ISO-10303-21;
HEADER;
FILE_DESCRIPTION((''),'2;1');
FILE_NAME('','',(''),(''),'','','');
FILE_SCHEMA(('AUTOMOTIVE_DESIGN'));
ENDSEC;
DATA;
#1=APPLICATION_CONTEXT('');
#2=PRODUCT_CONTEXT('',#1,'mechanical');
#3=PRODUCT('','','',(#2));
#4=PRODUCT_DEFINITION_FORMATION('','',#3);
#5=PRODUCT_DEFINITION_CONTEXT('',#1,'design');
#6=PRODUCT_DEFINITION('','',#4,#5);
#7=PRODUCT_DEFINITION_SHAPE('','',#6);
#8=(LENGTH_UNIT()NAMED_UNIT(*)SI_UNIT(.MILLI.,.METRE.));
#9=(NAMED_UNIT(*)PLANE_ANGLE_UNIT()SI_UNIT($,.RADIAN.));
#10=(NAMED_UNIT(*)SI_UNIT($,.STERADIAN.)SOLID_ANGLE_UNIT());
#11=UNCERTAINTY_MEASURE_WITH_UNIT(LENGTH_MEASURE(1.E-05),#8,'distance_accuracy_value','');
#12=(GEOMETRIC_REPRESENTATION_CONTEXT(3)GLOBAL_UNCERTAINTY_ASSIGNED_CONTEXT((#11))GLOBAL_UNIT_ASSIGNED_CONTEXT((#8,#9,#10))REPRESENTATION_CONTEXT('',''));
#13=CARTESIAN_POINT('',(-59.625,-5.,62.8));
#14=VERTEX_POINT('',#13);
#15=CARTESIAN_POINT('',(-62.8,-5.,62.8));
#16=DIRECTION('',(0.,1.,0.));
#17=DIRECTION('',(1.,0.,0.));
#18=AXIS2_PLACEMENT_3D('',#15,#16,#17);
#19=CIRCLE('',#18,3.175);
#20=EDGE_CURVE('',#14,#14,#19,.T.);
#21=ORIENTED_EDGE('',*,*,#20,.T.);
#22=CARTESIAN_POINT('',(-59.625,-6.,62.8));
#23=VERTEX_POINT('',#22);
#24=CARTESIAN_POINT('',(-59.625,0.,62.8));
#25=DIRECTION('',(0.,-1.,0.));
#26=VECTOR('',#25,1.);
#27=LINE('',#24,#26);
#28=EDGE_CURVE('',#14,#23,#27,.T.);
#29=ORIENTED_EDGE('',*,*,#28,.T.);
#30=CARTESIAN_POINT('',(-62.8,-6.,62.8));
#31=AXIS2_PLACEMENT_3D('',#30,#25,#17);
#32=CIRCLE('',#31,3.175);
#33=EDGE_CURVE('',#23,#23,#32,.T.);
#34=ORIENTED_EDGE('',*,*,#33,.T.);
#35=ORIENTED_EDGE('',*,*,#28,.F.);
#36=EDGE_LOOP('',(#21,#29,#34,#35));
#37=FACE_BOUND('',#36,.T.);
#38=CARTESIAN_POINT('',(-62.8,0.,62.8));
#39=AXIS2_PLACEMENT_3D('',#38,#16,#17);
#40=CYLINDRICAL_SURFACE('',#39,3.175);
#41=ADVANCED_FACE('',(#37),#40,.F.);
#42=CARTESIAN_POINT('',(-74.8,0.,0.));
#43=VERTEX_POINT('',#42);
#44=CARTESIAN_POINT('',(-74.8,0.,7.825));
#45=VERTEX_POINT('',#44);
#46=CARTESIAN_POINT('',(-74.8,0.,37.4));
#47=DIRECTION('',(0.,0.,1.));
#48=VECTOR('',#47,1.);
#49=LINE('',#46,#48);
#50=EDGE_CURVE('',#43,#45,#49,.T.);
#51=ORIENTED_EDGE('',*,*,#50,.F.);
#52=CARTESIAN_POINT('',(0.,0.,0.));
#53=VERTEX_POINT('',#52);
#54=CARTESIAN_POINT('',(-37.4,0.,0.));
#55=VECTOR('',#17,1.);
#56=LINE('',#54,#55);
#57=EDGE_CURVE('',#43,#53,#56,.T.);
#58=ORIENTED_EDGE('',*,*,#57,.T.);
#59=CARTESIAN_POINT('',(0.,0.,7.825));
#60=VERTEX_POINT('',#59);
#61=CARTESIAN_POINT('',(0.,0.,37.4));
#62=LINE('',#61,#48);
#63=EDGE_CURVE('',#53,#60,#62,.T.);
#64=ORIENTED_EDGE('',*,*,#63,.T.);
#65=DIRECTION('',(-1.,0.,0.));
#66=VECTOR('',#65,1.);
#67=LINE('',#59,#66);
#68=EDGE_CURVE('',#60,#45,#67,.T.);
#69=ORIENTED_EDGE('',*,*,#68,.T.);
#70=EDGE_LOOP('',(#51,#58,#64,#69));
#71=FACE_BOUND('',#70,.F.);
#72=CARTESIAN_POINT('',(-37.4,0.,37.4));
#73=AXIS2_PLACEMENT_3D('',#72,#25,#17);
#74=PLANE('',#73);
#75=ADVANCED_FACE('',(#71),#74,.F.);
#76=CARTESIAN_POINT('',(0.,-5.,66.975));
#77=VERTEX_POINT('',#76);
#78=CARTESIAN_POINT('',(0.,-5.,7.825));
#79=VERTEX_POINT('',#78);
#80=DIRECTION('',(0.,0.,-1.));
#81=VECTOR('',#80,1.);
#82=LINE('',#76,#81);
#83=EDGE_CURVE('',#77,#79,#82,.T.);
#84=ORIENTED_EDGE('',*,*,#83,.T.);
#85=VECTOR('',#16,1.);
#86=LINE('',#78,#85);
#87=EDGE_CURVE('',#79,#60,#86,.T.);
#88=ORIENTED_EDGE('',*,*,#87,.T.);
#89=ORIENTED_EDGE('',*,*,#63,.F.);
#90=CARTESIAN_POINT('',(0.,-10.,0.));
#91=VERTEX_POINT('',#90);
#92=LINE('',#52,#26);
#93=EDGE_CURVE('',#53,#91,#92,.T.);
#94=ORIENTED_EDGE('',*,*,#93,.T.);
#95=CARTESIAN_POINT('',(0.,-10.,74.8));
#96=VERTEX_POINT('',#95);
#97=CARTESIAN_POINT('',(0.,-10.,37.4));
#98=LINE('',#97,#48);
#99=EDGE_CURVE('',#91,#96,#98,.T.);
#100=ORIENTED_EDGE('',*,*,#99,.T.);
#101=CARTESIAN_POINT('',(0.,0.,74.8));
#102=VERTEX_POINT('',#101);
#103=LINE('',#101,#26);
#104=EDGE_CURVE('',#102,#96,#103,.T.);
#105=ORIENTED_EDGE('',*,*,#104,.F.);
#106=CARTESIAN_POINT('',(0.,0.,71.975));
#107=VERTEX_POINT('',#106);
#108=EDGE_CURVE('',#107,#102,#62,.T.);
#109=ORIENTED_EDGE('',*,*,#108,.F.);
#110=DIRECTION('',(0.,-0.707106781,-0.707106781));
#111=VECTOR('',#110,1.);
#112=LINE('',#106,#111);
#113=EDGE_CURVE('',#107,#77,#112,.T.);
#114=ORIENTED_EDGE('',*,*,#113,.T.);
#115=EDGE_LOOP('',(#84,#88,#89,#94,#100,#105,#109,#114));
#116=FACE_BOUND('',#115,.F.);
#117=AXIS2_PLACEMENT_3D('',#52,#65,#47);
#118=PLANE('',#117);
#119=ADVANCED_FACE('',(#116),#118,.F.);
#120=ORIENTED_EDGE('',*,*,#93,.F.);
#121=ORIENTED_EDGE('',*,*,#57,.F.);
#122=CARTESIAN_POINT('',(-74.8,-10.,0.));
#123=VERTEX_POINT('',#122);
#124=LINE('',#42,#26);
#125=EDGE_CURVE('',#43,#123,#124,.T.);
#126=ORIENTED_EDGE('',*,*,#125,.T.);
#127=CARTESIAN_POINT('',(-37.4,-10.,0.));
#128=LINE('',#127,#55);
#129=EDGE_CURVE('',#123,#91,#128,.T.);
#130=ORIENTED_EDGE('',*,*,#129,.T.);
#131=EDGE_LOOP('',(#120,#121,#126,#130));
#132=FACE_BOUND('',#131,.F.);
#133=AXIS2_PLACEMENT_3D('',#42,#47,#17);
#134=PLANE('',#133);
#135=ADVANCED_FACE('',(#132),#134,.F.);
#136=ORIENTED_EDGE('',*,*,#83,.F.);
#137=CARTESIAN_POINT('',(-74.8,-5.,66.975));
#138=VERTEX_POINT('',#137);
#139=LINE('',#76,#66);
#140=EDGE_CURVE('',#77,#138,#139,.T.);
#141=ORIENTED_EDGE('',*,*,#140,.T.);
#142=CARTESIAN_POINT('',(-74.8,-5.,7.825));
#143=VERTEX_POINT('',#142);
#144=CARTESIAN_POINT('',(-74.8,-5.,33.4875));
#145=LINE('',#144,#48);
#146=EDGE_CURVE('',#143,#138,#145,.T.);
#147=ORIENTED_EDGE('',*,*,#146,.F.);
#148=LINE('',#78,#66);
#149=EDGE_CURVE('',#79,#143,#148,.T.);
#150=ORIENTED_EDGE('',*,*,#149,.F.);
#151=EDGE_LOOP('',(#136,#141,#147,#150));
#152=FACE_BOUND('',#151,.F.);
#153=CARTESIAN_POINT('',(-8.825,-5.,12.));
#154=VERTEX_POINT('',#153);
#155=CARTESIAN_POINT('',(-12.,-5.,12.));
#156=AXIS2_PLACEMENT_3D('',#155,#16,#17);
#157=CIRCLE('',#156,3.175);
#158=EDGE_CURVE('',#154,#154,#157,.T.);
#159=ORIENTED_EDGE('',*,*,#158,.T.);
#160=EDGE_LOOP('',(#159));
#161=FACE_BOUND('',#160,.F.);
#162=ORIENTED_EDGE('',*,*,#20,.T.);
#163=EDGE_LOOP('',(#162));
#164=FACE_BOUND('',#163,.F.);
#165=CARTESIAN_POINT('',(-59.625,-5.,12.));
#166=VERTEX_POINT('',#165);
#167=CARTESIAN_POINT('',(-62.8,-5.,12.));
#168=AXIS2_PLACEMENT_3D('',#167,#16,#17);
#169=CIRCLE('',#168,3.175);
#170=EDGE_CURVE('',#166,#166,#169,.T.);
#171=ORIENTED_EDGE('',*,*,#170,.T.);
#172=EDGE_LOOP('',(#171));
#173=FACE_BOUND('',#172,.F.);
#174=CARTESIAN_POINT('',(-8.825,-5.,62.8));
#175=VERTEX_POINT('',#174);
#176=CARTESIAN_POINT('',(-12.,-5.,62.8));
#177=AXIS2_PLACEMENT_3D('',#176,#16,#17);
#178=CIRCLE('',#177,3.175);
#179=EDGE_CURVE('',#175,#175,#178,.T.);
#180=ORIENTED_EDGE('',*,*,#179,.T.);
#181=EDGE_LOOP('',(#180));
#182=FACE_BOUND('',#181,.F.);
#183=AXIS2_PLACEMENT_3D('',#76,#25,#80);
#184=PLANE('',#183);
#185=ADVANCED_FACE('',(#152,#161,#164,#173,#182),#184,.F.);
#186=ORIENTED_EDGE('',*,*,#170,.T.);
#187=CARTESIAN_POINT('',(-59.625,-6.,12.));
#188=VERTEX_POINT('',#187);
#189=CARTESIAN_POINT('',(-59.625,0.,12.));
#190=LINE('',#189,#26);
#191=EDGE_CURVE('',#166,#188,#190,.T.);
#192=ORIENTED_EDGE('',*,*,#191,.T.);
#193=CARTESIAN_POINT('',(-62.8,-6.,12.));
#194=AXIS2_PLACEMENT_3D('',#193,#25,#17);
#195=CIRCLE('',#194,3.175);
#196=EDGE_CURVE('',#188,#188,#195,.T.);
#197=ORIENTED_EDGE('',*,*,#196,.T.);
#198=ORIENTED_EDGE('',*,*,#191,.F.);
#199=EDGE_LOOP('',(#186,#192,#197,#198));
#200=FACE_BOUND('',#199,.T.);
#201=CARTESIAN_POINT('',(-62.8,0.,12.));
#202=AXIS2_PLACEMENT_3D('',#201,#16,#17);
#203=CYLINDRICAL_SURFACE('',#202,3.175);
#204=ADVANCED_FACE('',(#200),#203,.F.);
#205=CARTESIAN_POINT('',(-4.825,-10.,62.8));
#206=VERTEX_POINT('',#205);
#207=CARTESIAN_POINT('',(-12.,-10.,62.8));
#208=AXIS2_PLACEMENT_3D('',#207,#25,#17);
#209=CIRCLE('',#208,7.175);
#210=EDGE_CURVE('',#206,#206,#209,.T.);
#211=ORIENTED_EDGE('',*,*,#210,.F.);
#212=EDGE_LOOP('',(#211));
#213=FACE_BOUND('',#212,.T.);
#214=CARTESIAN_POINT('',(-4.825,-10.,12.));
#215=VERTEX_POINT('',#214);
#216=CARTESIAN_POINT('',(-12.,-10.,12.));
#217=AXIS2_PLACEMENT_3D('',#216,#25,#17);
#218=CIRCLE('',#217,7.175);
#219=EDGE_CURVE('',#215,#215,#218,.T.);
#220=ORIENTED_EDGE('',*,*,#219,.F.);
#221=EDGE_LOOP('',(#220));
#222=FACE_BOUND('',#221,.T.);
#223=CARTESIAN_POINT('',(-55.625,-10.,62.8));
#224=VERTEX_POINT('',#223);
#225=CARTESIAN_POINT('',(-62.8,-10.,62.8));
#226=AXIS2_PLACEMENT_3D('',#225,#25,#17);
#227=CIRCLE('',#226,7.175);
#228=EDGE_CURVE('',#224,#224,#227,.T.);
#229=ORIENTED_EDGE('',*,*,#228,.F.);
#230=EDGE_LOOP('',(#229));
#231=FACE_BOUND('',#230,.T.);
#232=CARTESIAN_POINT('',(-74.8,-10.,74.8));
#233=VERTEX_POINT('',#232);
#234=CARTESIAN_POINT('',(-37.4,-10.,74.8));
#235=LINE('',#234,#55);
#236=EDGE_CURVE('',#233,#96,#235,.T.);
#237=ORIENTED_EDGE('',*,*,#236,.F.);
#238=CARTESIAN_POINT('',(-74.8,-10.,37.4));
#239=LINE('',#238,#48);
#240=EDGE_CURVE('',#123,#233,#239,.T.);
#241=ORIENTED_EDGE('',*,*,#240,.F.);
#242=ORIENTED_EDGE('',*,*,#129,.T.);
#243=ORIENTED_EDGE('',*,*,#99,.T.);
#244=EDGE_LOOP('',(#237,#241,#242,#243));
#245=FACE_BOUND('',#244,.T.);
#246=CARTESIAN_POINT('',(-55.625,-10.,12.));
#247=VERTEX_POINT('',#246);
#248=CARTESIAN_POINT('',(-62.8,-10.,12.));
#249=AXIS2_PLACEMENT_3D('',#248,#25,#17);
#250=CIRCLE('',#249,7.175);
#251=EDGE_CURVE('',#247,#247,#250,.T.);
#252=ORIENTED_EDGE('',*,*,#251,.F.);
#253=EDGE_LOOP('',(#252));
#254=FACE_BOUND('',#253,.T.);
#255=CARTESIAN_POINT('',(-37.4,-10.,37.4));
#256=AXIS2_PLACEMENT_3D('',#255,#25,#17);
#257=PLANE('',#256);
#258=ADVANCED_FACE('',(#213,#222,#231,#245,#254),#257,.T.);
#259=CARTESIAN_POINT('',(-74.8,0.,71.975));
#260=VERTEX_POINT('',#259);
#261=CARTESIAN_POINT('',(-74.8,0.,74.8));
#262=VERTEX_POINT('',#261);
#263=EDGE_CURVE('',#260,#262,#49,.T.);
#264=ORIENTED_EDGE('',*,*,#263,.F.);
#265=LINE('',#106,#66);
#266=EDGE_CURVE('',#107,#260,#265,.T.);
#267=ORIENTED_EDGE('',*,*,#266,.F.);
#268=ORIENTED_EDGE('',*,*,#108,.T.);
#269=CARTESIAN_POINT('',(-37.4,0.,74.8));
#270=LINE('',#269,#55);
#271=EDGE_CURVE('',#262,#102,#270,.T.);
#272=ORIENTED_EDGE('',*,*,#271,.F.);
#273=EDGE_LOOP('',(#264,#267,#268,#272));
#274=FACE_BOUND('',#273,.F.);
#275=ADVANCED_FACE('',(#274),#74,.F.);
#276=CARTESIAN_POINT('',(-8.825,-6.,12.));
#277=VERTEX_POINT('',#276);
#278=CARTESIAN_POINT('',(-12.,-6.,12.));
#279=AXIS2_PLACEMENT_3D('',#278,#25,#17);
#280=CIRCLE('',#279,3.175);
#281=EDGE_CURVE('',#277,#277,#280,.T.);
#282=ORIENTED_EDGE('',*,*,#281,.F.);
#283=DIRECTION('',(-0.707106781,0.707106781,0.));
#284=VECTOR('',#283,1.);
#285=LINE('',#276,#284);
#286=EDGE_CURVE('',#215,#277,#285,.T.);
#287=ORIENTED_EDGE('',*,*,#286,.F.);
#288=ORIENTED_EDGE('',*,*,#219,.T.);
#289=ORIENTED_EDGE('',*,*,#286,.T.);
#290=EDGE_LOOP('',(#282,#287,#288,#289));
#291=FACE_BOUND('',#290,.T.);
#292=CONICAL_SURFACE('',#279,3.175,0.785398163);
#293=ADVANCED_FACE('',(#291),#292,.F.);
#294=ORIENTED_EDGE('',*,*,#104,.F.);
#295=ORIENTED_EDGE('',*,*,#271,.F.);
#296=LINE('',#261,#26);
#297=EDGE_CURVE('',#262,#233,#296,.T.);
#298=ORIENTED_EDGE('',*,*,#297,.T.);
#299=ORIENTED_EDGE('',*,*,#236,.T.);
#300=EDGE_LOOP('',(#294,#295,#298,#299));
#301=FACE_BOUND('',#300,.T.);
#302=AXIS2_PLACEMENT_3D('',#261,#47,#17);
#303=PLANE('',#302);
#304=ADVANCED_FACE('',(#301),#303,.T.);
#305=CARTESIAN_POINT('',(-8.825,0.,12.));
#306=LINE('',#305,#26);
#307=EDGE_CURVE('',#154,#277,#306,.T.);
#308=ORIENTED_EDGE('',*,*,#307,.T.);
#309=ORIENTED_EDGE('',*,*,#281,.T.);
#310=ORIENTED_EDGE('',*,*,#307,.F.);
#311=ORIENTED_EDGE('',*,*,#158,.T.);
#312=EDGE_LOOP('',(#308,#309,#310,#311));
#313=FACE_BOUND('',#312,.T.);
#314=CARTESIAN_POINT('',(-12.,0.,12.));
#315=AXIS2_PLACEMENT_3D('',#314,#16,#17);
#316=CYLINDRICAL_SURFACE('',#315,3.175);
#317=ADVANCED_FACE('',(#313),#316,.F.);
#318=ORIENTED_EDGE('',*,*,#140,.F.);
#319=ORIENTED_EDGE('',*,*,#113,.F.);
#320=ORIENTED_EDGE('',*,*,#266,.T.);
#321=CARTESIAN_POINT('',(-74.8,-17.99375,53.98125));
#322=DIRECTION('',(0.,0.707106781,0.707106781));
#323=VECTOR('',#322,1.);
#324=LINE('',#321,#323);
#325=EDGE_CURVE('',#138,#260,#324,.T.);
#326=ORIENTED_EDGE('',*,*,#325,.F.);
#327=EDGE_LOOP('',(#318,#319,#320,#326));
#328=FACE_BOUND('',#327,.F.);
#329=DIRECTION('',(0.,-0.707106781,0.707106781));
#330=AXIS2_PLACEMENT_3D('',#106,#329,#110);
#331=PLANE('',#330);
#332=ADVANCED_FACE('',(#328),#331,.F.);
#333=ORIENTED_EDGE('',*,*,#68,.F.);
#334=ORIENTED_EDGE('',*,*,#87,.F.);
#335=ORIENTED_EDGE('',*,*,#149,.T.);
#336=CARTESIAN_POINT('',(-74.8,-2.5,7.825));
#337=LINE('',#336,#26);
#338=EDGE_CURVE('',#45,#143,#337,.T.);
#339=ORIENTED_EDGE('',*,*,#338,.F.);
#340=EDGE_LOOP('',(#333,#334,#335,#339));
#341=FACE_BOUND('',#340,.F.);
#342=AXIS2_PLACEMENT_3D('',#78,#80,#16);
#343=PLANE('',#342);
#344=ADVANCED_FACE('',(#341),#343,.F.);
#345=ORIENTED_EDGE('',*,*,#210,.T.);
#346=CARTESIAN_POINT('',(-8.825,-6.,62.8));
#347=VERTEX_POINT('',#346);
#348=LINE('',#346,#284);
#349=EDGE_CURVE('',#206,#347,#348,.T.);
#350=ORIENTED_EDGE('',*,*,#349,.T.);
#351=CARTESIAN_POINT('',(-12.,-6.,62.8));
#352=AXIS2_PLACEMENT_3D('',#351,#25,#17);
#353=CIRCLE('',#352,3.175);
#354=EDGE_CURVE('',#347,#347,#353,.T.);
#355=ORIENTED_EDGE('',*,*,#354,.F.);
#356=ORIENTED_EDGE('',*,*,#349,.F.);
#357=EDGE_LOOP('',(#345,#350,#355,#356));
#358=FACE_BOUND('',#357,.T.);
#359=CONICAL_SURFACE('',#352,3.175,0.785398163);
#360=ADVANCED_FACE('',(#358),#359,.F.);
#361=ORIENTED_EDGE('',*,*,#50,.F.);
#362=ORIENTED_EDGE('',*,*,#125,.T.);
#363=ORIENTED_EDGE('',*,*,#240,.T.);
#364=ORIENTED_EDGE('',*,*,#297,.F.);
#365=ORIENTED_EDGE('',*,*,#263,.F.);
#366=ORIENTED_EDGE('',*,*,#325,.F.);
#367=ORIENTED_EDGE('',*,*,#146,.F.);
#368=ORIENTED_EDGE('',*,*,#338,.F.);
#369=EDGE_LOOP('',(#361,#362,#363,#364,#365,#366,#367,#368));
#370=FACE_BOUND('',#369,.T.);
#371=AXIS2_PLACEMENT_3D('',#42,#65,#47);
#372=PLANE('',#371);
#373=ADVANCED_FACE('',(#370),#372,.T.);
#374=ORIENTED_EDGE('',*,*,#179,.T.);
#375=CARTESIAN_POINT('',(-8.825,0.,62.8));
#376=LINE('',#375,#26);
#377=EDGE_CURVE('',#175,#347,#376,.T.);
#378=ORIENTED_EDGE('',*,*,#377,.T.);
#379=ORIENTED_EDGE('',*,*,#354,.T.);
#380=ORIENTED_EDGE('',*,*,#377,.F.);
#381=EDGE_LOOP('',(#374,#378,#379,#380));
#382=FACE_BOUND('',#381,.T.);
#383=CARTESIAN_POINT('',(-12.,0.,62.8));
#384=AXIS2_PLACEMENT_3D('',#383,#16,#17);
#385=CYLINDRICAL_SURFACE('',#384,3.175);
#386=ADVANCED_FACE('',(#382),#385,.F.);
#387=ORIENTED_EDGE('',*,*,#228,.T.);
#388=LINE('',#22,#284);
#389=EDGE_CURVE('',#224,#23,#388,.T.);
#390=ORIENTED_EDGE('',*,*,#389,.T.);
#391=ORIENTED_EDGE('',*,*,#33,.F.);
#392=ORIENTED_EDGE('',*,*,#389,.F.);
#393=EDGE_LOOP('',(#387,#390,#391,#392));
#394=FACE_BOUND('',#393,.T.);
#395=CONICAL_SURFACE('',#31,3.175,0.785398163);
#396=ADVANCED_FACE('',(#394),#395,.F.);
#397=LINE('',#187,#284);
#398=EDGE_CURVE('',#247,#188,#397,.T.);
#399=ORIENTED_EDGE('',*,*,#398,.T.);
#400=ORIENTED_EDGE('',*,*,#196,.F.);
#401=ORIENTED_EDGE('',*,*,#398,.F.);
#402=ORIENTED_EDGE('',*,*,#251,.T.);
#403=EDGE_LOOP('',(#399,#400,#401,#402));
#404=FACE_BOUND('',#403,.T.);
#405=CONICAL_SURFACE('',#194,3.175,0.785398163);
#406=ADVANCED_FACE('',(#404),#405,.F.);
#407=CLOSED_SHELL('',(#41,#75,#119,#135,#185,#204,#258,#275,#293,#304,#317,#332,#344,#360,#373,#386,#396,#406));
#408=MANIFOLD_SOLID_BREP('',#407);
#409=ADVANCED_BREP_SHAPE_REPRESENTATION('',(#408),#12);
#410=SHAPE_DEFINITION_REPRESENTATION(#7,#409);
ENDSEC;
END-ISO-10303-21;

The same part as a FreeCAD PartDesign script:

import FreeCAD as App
import Part
import Sketcher
Q = App.Units.Quantity


def edges_at(feature, points):
    """Names of the edges that pass closest to the given points."""
    edges = feature.Shape.Edges
    near = lambda p: min(range(len(edges)), key=lambda i: edges[i].distToShape(Part.Vertex(*p))[0])
    return sorted({f"Edge{near(p) + 1}" for p in points})

doc = App.newDocument("Part")
body = doc.addObject("PartDesign::Body", "Body")

sketch1 = body.newObject("Sketcher::SketchObject", "Sketch")
sketch1.AttachmentSupport = (doc.getObject("XZ_Plane"), [""])
sketch1.MapMode = "FlatFace"
sketch1.addGeometry(Part.LineSegment(App.Vector(-74.8, 74.8, 0), App.Vector(-74.8, 0, 0)), False)
sketch1.addGeometry(Part.LineSegment(App.Vector(-74.8, 0, 0), App.Vector(0, 0, 0)), False)
sketch1.addGeometry(Part.LineSegment(App.Vector(0, 0, 0), App.Vector(0, 74.8, 0)), False)
sketch1.addGeometry(Part.LineSegment(App.Vector(0, 74.8, 0), App.Vector(-74.8, 74.8, 0)), False)
sketch1.addGeometry(Part.Circle(App.Vector(-62.8, 12, 0), App.Vector(0, 0, 1), 3.2), False)
sketch1.addGeometry(Part.Circle(App.Vector(-12, 12, 0), App.Vector(0, 0, 1), 3.2), False)
sketch1.addGeometry(Part.Circle(App.Vector(-62.8, 62.8, 0), App.Vector(0, 0, 1), 3.2), False)
sketch1.addGeometry(Part.Circle(App.Vector(-12, 62.8, 0), App.Vector(0, 0, 1), 3.2), False)
sketch1.addConstraint(Sketcher.Constraint("Coincident", 0, 2, 1, 1))
sketch1.addConstraint(Sketcher.Constraint("Coincident", 1, 2, 2, 1))
sketch1.addConstraint(Sketcher.Constraint("Coincident", 2, 2, 3, 1))
sketch1.addConstraint(Sketcher.Constraint("Coincident", 3, 2, 0, 1))
sketch1.addConstraint(Sketcher.Constraint("Vertical", 0))
sketch1.addConstraint(Sketcher.Constraint("Horizontal", 1))
sketch1.addConstraint(Sketcher.Constraint("Vertical", 2))
sketch1.addConstraint(Sketcher.Constraint("Horizontal", 3))
sketch1.addConstraint(Sketcher.Constraint("Coincident", 1, 2, -1, 1))
sketch1.addConstraint(Sketcher.Constraint("Equal", 4, 5))
sketch1.addConstraint(Sketcher.Constraint("Equal", 5, 6))
sketch1.addConstraint(Sketcher.Constraint("Equal", 6, 7))
sketch1.addConstraint(Sketcher.Constraint("Horizontal", 4, 3, 5, 3))
sketch1.addConstraint(Sketcher.Constraint("Horizontal", 6, 3, 7, 3))
sketch1.addConstraint(Sketcher.Constraint("Vertical", 4, 3, 6, 3))
sketch1.addConstraint(Sketcher.Constraint("Vertical", 5, 3, 7, 3))
sketch1.addConstraint(Sketcher.Constraint("Equal", 3, 0))
sketch1.addConstraint(Sketcher.Constraint("Diameter", 4, 6.35))
sketch1.addConstraint(Sketcher.Constraint("DistanceX", 1, 1, 1, 2, 74.8))
sketch1.addConstraint(Sketcher.Constraint("DistanceY", -1, 1, 4, 3, 12.0))
sketch1.addConstraint(Sketcher.Constraint("DistanceX", 5, 3, -1, 1, 12.0))
sketch1.addConstraint(Sketcher.Constraint("DistanceX", 0, 2, 4, 3, 12.0))
sketch1.addConstraint(Sketcher.Constraint("DistanceY", 7, 3, 2, 2, 12.0))
pad1 = body.newObject("PartDesign::Pad", "Pad")
pad1.Profile = sketch1
pad1.Length = 10

sketch2 = body.newObject("Sketcher::SketchObject", "Sketch001")
sketch2.AttachmentSupport = (doc.getObject("YZ_Plane"), [""])
sketch2.MapMode = "FlatFace"
sketch2.addGeometry(Part.LineSegment(App.Vector(0, 72, 0), App.Vector(-5, 67, 0)), False)
sketch2.addGeometry(Part.LineSegment(App.Vector(-5, 67, 0), App.Vector(-5, 8, 0)), False)
sketch2.addGeometry(Part.LineSegment(App.Vector(-5, 8, 0), App.Vector(0, 8, 0)), False)
sketch2.addGeometry(Part.LineSegment(App.Vector(0, 8, 0), App.Vector(0, 72, 0)), False)
sketch2.addConstraint(Sketcher.Constraint("Coincident", 0, 2, 1, 1))
sketch2.addConstraint(Sketcher.Constraint("Coincident", 1, 2, 2, 1))
sketch2.addConstraint(Sketcher.Constraint("Coincident", 2, 2, 3, 1))
sketch2.addConstraint(Sketcher.Constraint("Coincident", 3, 2, 0, 1))
sketch2.addConstraint(Sketcher.Constraint("Vertical", 1))
sketch2.addConstraint(Sketcher.Constraint("Horizontal", 2))
sketch2.addConstraint(Sketcher.Constraint("Vertical", 3))
sketch2.addConstraint(Sketcher.Constraint("PointOnObject", 2, 2, -2))
sketch2.addConstraint(Sketcher.Constraint("DistanceX", 2, 1, 2, 2, 5.0))
sketch2.addConstraint(Sketcher.Constraint("Angle", 0, Q("-135 deg")))
sketch2.addConstraint(Sketcher.Constraint("DistanceY", 1, 2, 1, 1, 59.15))
sketch2.addConstraint(Sketcher.Constraint("DistanceY", -1, 1, 0, 2, 66.975))
pocket1 = body.newObject("PartDesign::Pocket", "Pocket")
pocket1.Profile = sketch2
pocket1.Type = "ThroughAll"
doc.recompute()

chamfer = body.newObject("PartDesign::Chamfer", "Chamfer")
chamfer.Base = (pocket1, edges_at(pocket1, [
    (-65.975, -10, 62.8),
    (-15.175, -10, 62.8),
    (-15.175, -10, 12),
    (-65.975, -10, 12),
]))
chamfer.Size = 4

doc.recompute()
